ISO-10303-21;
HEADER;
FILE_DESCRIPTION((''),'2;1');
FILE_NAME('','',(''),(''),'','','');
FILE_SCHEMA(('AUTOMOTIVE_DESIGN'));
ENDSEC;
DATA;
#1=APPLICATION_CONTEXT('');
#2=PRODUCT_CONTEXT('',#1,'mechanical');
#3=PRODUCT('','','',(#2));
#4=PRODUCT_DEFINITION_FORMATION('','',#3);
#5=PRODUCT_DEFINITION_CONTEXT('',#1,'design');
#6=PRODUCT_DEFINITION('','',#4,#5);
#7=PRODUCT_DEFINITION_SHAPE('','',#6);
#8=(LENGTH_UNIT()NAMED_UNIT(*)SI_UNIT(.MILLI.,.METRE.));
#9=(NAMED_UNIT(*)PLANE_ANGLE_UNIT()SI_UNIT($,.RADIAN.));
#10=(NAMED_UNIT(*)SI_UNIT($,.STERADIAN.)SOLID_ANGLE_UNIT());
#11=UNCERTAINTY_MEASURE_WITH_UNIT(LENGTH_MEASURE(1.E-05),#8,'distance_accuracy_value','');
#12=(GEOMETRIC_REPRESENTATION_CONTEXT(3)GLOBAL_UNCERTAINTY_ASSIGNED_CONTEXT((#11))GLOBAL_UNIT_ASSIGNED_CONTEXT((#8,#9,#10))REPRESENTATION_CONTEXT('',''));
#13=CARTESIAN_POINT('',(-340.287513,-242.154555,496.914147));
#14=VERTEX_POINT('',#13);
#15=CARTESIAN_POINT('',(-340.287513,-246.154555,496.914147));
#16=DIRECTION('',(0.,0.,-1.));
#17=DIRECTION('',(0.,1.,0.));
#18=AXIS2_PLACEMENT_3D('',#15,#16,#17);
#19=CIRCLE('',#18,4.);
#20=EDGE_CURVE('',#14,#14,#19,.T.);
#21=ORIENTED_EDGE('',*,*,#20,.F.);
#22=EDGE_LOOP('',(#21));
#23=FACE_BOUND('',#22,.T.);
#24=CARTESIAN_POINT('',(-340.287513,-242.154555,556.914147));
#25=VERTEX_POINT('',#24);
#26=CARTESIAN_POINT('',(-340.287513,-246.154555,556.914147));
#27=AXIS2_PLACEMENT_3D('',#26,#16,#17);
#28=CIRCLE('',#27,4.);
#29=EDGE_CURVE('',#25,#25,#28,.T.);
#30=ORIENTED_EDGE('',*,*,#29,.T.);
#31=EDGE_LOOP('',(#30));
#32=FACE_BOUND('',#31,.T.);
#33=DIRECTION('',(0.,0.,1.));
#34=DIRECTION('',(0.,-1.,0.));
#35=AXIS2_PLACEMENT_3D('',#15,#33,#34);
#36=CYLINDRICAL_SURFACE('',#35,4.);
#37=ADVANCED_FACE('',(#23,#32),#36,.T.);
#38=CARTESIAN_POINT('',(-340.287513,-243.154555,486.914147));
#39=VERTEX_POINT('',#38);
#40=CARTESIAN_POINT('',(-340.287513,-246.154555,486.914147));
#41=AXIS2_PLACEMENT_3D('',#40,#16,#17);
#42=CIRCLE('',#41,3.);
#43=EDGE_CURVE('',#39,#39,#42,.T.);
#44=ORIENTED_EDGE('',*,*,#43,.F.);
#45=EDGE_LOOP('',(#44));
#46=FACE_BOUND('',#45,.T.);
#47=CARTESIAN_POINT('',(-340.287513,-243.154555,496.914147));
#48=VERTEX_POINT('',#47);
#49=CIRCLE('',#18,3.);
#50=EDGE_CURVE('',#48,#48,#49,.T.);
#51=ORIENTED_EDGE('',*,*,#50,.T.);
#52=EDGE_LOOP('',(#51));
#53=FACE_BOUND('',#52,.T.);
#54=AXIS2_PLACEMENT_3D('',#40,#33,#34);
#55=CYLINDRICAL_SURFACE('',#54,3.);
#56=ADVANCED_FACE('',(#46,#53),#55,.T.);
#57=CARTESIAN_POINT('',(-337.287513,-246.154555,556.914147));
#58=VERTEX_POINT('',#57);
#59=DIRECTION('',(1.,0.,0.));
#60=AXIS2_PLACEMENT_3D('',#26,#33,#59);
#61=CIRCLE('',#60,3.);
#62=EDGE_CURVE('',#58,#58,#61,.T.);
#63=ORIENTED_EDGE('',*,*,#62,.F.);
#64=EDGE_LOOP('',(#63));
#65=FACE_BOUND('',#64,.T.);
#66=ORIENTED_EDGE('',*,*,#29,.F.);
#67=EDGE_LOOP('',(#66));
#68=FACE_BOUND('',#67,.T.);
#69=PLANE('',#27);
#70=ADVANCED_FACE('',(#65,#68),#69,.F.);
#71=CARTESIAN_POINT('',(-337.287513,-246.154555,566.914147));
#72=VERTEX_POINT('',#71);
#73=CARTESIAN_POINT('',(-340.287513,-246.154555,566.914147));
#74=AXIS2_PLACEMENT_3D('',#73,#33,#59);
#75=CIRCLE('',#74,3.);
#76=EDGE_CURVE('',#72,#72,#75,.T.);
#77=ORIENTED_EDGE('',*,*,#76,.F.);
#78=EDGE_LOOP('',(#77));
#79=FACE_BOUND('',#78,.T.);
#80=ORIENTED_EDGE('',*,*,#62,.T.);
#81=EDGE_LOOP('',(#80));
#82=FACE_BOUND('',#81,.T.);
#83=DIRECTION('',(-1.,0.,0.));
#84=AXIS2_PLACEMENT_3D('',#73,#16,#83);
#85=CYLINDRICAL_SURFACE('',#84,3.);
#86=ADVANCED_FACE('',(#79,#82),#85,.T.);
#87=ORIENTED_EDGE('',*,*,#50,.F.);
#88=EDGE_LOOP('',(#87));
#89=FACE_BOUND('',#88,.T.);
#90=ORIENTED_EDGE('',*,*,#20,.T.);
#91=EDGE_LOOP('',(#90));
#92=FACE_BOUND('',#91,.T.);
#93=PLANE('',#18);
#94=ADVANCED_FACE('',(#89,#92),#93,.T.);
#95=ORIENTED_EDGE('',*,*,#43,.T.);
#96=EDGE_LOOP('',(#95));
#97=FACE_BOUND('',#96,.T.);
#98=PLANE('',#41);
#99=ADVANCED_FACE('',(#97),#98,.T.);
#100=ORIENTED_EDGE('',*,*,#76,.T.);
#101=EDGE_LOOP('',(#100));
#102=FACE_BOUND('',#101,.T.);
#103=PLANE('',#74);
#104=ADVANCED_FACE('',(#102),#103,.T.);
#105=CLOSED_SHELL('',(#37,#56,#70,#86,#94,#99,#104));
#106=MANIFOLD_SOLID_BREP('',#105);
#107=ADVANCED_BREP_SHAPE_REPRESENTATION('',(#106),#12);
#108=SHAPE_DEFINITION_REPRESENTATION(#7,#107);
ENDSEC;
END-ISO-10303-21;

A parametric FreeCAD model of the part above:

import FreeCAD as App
import Part
import Sketcher

V = App.Vector

doc = App.newDocument("Part")
body = doc.addObject("PartDesign::Body", "Body")

# Sketch on XY plane
sketch1 = doc.addObject("Sketcher::SketchObject", "Sketch")
body.addObject(sketch1)
sketch1.AttachmentSupport = (doc.XY_Plane, [""])
sketch1.MapMode = "FlatFace"
sketch1.AttachmentOffset = App.Placement(V(0, 0, 526.914147), App.Rotation())
sketch1.addGeometry(Part.Circle(V(-340.3, -246.2, 0), V(0, 0, 1), 4), False)
sketch1.addConstraint(Sketcher.Constraint("Diameter", 0, 8.0))
sketch1.addConstraint(Sketcher.Constraint("DistanceX", 0, 3, -1, 1, 340.287513))
sketch1.addConstraint(Sketcher.Constraint("DistanceY", 0, 3, -1, 1, 246.154555))
pad1 = doc.addObject("PartDesign::Pad", "Pad")
body.addObject(pad1)
pad1.Profile = sketch1
pad1.Length = 60
pad1.Midplane = True

# Sketch on XY plane
sketch2 = doc.addObject("Sketcher::SketchObject", "Sketch001")
body.addObject(sketch2)
sketch2.AttachmentSupport = (doc.XY_Plane, [""])
sketch2.MapMode = "FlatFace"
sketch2.AttachmentOffset = App.Placement(V(0, 0, 496.914147), App.Rotation())
sketch2.addGeometry(Part.Circle(V(-340.3, -246.2, 0), V(0, 0, 1), 3), False)
sketch2.addConstraint(Sketcher.Constraint("Diameter", 0, 6.0))
sketch2.addConstraint(Sketcher.Constraint("DistanceX", 0, 3, -1, 1, 340.287513))
sketch2.addConstraint(Sketcher.Constraint("DistanceY", 0, 3, -1, 1, 246.154555))
pad2 = doc.addObject("PartDesign::Pad", "Pad001")
body.addObject(pad2)
pad2.Profile = sketch2
pad2.Length = 10
pad2.Reversed = True

# Sketch on XY plane
sketch3 = doc.addObject("Sketcher::SketchObject", "Sketch002")
body.addObject(sketch3)
sketch3.AttachmentSupport = (doc.XY_Plane, [""])
sketch3.MapMode = "FlatFace"
sketch3.AttachmentOffset = App.Placement(V(0, 0, 566.914147), App.Rotation())
sketch3.addGeometry(Part.Circle(V(-340.3, -246.2, 0), V(0, 0, 1), 3), False)
sketch3.addConstraint(Sketcher.Constraint("Diameter", 0, 6.0))
sketch3.addConstraint(Sketcher.Constraint("DistanceX", 0, 3, -1, 1, 340.287513))
sketch3.addConstraint(Sketcher.Constraint("DistanceY", 0, 3, -1, 1, 246.154555))
pad3 = doc.addObject("PartDesign::Pad", "Pad002")
body.addObject(pad3)
pad3.Profile = sketch3
pad3.Length = 10
pad3.Reversed = True

doc.recompute()
